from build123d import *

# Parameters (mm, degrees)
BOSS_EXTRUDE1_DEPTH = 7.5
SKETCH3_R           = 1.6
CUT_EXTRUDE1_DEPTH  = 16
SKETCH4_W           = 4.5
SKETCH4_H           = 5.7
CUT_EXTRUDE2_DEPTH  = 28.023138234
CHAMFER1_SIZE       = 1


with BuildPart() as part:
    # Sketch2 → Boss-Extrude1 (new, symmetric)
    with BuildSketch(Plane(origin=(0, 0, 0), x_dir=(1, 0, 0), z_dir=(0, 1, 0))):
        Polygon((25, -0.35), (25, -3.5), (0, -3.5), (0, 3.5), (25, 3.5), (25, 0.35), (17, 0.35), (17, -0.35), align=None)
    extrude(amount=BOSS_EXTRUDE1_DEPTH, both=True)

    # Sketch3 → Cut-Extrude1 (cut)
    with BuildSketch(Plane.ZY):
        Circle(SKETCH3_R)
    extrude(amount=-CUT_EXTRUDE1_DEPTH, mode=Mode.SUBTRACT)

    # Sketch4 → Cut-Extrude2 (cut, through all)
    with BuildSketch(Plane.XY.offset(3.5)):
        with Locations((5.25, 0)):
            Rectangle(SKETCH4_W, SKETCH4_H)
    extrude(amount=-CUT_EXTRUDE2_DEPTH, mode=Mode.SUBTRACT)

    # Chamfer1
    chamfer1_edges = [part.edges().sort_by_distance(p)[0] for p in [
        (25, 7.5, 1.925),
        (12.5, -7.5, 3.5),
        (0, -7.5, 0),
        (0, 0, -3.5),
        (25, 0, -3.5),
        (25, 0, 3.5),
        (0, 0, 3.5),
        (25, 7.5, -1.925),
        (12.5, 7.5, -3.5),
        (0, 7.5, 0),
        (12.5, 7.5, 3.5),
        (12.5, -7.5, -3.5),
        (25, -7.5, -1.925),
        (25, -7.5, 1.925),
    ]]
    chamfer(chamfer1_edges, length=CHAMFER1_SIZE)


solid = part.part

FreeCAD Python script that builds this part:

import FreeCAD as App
import Part
import Sketcher

V = App.Vector


def edges_at(feature, points):
    """Names of the edges that pass closest to the given points."""
    edges = feature.Shape.Edges
    near = lambda p: min(range(len(edges)), key=lambda i: edges[i].distToShape(Part.Vertex(*p))[0])
    return sorted({f"Edge{near(p) + 1}" for p in points})


def add_polygon(sketch, points):
    """Adds a closed chain of lines whose ends are joined by coincident constraints."""
    first, n = sketch.GeometryCount, len(points)
    for a, b in zip(points, points[1:] + points[:1]):
        sketch.addGeometry(Part.LineSegment(App.Vector(*a, 0), App.Vector(*b, 0)), False)
    for i in range(n):
        sketch.addConstraint(Sketcher.Constraint("Coincident", first + i, 2, first + (i + 1) % n, 1))

doc = App.newDocument("Part")
body = doc.addObject("PartDesign::Body", "Body")

# Sketch on XZ plane
sketch1 = body.newObject("Sketcher::SketchObject", "Sketch")
sketch1.AttachmentSupport = (doc.getObject("XZ_Plane"), [""])
sketch1.MapMode = "FlatFace"
add_polygon(sketch1, [(25, 3.5), (25, 0.35), (17, 0.35), (17, -0.35), (25, -0.35), (25, -3.5), (0, -3.5), (0, 3.5)])  # lines 0-7
sketch1.addConstraint([
    Sketcher.Constraint("Vertical", 0),
    Sketcher.Constraint("Horizontal", 1),
    Sketcher.Constraint("Vertical", 2),
    Sketcher.Constraint("Horizontal", 3),
    Sketcher.Constraint("Vertical", 4),
    Sketcher.Constraint("Horizontal", 5),
    Sketcher.Constraint("Vertical", 6),
    Sketcher.Constraint("Horizontal", 7),
    Sketcher.Constraint("Symmetric", 5, 2, 6, 2, -1, 1),
    Sketcher.Constraint("Symmetric", 0, 2, 3, 2, -1),
    Sketcher.Constraint("DistanceX", 1, 2, 1, 1, 8.0),
    Sketcher.Constraint("DistanceX", 5, 2, 5, 1, 25.0),
    Sketcher.Constraint("DistanceY", 6, 1, 6, 2, 7.0),
    Sketcher.Constraint("DistanceY", 2, 2, 2, 1, 0.7),
])
pad1 = body.newObject("PartDesign::Pad", "Pad")
pad1.Profile = sketch1
pad1.Length = 15
pad1.Midplane = True

# Sketch on YZ plane
sketch2 = body.newObject("Sketcher::SketchObject", "Sketch001")
sketch2.AttachmentSupport = (doc.getObject("YZ_Plane"), [""])
sketch2.MapMode = "FlatFace"
sketch2.addGeometry(Part.Circle(V(0, 0, 0), V(0, 0, 1), 1.6), False)
sketch2.addConstraint([
    Sketcher.Constraint("Coincident", 0, 3, -1, 1),
    Sketcher.Constraint("Diameter", 0, 3.2),
])
pocket1 = body.newObject("PartDesign::Pocket", "Pocket")
pocket1.Profile = sketch2
pocket1.Length = 16
pocket1.Reversed = True

# Sketch on XY plane
sketch3 = body.newObject("Sketcher::SketchObject", "Sketch002")
sketch3.AttachmentSupport = (doc.getObject("XY_Plane"), [""])
sketch3.MapMode = "FlatFace"
sketch3.AttachmentOffset = App.Placement(V(0, 0, 3.5), App.Rotation())
add_polygon(sketch3, [(3, 2.85), (3, -2.85), (7.5, -2.85), (7.5, 2.85)])  # lines 0-3
sketch3.addConstraint([
    Sketcher.Constraint("Vertical", 0),
    Sketcher.Constraint("Horizontal", 1),
    Sketcher.Constraint("Vertical", 2),
    Sketcher.Constraint("Horizontal", 3),
    Sketcher.Constraint("DistanceX", 1, 1, 1, 2, 4.5),
    Sketcher.Constraint("DistanceY", 0, 2, 0, 1, 5.7),
    Sketcher.Constraint("DistanceX", -1, 1, 0, 2, 3.0),
    Sketcher.Constraint("DistanceY", 0, 2, -1, 1, 2.85),
])
pocket2 = body.newObject("PartDesign::Pocket", "Pocket001")
pocket2.Profile = sketch3
pocket2.Type = "ThroughAll"
doc.recompute()

chamfer = body.newObject("PartDesign::Chamfer", "Chamfer")
chamfer.Base = (pocket2, edges_at(pocket2, [
    (25, 7.5, 1.925),
    (12.5, -7.5, 3.5),
    (0, -7.5, 0),
    (0, 0, -3.5),
    (25, 0, -3.5),
    (25, 0, 3.5),
    (0, 0, 3.5),
    (25, 7.5, -1.925),
    (12.5, 7.5, -3.5),
    (0, 7.5, 0),
    (12.5, 7.5, 3.5),
    (12.5, -7.5, -3.5),
    (25, -7.5, -1.925),
    (25, -7.5, 1.925),
]))
chamfer.Size = 1

doc.recompute()
